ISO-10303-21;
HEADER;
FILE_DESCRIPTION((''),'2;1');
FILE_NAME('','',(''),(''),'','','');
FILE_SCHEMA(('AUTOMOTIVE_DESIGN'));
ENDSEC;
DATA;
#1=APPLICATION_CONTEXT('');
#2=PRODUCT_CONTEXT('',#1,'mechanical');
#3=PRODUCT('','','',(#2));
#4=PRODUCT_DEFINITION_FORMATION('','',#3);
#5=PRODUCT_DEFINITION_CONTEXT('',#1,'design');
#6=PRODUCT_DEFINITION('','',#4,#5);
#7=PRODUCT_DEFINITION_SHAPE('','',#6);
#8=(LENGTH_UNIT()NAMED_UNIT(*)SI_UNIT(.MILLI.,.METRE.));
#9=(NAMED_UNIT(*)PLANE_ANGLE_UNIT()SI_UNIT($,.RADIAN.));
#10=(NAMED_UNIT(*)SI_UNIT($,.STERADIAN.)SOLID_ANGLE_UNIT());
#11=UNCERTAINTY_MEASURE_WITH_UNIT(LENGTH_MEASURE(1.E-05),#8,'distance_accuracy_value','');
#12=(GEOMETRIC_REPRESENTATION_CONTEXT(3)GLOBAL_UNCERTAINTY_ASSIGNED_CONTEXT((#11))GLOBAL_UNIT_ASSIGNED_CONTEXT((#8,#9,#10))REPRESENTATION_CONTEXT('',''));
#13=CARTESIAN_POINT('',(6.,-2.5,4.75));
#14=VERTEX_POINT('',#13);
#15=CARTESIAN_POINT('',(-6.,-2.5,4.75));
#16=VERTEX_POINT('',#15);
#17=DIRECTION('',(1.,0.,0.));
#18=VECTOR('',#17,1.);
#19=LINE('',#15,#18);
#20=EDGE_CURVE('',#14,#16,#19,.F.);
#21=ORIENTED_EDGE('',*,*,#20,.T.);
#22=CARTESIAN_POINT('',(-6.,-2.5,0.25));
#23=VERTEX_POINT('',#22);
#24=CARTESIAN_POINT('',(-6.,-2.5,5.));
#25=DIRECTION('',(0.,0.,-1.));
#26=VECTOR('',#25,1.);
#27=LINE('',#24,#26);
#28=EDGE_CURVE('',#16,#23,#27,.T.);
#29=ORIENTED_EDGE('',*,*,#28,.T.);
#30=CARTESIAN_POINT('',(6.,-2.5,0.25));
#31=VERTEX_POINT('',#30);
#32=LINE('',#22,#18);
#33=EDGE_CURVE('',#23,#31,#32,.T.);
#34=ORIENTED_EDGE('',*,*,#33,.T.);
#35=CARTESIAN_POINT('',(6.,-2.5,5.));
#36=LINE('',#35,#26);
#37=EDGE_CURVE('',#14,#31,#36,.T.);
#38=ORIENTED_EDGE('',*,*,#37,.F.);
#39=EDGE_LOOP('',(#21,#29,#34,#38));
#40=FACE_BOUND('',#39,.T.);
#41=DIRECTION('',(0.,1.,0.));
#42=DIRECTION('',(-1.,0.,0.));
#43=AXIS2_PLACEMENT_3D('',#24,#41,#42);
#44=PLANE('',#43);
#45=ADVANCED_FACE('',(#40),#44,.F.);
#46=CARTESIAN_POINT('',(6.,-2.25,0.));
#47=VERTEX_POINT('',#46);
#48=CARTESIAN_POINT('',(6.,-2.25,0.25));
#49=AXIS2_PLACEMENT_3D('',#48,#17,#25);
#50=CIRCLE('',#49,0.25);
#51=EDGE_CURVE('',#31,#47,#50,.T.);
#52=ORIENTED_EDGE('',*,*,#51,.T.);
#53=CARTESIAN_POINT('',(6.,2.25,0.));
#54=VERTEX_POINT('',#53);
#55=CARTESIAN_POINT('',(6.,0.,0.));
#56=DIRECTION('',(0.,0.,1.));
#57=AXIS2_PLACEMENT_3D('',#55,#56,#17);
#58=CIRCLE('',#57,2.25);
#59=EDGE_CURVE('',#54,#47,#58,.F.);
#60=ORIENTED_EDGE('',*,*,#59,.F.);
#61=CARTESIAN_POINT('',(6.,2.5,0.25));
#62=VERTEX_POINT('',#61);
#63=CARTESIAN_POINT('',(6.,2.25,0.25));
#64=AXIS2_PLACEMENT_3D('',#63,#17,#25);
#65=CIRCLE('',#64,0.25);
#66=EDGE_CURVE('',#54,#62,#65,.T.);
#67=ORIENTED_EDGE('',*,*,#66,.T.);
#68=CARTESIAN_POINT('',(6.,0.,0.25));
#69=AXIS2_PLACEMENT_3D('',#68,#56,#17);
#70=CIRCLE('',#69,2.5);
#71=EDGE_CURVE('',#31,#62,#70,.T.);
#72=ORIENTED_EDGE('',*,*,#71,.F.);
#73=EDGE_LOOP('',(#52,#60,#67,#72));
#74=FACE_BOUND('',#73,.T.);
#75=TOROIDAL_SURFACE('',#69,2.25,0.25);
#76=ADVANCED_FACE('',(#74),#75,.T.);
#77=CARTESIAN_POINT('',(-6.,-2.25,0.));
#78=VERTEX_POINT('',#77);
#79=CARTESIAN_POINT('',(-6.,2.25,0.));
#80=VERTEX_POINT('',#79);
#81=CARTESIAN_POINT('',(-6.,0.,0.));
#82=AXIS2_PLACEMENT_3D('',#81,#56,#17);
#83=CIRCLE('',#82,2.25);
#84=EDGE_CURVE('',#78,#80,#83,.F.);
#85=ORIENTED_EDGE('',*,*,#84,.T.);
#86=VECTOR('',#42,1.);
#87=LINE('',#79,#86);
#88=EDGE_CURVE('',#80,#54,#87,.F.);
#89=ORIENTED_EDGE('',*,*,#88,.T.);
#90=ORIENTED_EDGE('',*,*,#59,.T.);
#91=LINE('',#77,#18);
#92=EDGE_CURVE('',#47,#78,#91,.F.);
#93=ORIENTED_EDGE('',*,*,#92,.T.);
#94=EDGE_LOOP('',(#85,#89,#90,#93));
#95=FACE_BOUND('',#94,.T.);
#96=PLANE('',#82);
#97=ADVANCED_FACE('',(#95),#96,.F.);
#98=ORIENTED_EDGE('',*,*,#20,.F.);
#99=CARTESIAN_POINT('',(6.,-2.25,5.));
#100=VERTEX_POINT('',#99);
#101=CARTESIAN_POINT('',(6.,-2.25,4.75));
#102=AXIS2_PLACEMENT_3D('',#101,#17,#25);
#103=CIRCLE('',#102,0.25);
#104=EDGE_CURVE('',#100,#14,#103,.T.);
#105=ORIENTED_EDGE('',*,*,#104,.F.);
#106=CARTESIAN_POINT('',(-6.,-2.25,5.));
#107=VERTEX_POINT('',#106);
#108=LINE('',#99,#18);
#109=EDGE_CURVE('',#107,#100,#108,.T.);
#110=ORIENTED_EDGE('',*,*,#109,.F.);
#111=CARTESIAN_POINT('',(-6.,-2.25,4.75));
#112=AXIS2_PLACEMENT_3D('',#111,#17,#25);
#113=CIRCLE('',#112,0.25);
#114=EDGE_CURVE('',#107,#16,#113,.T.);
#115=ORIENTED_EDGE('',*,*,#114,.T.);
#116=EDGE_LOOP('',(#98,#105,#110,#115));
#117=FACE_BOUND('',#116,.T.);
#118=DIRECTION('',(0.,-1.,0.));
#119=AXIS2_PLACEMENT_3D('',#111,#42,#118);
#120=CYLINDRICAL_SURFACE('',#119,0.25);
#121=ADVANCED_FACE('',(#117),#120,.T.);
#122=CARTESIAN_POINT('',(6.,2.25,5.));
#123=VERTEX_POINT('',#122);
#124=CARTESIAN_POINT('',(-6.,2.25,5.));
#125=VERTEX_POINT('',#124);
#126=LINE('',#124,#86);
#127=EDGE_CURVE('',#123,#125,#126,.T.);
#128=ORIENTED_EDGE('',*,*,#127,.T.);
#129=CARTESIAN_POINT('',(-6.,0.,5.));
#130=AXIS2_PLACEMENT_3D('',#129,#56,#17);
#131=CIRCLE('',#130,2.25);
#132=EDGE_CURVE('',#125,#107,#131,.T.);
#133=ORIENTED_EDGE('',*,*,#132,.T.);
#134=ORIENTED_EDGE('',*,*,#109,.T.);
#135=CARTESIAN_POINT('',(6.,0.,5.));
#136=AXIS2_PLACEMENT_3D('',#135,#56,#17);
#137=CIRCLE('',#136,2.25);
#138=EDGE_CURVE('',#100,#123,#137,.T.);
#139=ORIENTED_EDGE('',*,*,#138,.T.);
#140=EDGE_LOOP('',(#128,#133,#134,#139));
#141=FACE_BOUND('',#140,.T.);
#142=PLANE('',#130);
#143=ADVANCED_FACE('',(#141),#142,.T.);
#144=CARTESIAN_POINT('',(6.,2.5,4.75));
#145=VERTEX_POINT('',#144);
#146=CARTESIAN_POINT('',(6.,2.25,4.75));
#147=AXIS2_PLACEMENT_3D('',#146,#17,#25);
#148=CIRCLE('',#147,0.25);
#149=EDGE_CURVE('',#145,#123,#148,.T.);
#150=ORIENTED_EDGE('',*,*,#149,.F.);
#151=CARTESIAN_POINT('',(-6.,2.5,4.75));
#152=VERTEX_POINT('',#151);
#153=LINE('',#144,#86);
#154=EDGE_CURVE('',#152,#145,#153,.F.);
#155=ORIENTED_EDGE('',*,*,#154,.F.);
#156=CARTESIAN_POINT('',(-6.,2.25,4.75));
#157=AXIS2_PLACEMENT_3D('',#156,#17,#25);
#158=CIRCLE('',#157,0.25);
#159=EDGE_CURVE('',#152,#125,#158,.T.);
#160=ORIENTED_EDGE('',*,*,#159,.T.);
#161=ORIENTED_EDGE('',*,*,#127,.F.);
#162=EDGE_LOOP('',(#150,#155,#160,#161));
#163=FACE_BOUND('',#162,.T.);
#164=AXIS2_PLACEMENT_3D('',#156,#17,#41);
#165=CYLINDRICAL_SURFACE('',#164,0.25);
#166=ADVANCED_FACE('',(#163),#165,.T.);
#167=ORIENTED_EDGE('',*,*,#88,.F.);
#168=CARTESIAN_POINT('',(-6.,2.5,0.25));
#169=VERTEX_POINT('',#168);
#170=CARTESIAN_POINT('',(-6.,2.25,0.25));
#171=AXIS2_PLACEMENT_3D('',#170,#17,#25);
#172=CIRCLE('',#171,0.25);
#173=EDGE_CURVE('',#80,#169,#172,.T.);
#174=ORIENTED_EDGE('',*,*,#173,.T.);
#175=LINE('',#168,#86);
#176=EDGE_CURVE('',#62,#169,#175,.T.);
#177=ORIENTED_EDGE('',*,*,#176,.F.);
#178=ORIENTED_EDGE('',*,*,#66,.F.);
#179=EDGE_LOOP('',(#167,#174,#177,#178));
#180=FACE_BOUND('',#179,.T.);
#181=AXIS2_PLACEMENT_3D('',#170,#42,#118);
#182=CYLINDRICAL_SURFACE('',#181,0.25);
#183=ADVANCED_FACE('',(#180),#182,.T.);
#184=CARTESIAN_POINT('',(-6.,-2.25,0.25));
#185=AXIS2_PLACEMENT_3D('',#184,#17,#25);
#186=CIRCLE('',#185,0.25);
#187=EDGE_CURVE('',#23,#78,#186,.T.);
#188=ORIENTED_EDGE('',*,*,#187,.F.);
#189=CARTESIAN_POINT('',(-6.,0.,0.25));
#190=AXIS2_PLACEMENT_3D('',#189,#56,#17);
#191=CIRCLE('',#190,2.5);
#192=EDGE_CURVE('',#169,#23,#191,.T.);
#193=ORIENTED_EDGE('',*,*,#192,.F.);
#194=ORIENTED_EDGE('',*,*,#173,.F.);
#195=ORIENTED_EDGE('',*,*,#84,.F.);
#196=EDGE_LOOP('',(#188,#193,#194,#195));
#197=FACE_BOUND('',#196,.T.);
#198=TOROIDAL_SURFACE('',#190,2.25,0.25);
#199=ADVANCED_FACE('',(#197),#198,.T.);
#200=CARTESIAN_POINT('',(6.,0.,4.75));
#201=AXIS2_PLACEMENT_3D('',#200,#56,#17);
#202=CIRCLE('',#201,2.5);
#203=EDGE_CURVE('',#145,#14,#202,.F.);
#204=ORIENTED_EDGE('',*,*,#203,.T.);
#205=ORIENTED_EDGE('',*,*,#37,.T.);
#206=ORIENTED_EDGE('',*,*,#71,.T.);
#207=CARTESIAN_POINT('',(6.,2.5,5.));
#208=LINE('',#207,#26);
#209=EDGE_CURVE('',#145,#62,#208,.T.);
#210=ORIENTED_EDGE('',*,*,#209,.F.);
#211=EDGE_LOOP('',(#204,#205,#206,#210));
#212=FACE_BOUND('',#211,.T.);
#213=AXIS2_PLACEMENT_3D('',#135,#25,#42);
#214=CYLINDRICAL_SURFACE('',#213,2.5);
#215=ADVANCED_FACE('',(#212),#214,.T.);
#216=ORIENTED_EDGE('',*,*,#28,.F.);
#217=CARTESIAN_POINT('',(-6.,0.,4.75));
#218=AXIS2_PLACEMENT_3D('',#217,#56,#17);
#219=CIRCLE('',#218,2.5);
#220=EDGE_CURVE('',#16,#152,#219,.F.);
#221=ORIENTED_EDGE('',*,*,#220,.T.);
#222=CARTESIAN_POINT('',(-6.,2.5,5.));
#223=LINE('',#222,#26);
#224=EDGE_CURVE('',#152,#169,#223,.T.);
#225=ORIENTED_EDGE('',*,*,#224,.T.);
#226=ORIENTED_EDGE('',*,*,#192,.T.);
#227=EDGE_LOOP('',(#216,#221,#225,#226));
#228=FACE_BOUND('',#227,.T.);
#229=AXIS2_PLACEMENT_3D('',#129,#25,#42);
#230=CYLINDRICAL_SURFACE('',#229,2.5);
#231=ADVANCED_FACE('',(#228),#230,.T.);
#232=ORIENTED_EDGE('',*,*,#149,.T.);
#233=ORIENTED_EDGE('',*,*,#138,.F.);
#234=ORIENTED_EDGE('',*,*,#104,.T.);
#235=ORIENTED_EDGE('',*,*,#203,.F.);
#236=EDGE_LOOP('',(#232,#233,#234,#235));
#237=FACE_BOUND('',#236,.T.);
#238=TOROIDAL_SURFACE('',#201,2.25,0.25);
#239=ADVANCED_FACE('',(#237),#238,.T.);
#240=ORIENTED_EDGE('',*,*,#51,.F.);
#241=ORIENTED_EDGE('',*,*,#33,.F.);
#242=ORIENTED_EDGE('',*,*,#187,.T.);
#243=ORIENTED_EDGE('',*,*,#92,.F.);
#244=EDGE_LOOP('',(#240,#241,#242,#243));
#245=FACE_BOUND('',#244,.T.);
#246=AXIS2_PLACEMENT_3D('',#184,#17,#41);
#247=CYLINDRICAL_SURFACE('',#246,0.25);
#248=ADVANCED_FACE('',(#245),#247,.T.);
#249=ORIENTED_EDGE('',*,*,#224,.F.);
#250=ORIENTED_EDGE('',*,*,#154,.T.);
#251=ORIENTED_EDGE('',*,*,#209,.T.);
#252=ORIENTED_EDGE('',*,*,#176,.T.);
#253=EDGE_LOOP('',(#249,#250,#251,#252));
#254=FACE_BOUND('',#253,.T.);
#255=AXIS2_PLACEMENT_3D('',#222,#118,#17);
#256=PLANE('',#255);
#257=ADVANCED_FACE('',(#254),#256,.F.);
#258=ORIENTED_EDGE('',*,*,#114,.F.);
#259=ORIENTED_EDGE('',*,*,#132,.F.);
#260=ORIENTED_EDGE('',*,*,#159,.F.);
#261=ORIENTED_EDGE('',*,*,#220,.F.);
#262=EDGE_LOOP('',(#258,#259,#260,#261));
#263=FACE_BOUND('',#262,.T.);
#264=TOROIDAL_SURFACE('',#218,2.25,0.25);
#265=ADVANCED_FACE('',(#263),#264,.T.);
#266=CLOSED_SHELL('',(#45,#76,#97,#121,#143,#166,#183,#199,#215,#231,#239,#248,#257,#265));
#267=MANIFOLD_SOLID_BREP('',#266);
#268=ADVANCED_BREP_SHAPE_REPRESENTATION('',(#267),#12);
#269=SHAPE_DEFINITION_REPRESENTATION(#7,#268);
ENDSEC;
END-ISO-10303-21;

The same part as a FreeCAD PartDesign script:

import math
import FreeCAD as App
import Part
import Sketcher

V = App.Vector
Q = App.Units.Quantity


def edges_at(feature, points):
    """Names of the edges that pass closest to the given points."""
    edges = feature.Shape.Edges
    near = lambda p: min(range(len(edges)), key=lambda i: edges[i].distToShape(Part.Vertex(*p))[0])
    return sorted({f"Edge{near(p) + 1}" for p in points})

doc = App.newDocument("Part")
params = doc.addObject("Spreadsheet::Sheet", "Params")
for row, (alias, value) in enumerate([
    ("sketch1_radius", "2.5 mm"),
    ("sketch1_width", "12 mm"),
    ("pad1_length", "5 mm"),
    ("fillet_radius", "0.25 mm"),
], start=1):
    params.set(f"A{row}", alias)
    params.set(f"B{row}", "=" + value)
    params.setAlias(f"B{row}", alias)

body = doc.addObject("PartDesign::Body", "Body")

sketch1 = body.newObject("Sketcher::SketchObject", "Sketch")
sketch1.AttachmentSupport = (doc.getObject("XY_Plane"), [""])
sketch1.MapMode = "FlatFace"
sketch1.addGeometry(Part.LineSegment(V(6, 2.5, 0), V(-6, 2.5, 0)), False)
sketch1.addGeometry(Part.ArcOfCircle(Part.Circle(V(-6, 0, 0), V(0, 0, 1), 2.5), math.radians(90), math.radians(270)), False)
sketch1.addGeometry(Part.LineSegment(V(-6, -2.5, 0), V(6, -2.5, 0)), False)
sketch1.addGeometry(Part.ArcOfCircle(Part.Circle(V(6, 0, 0), V(0, 0, 1), 2.5), math.radians(-90), math.radians(90)), False)
sketch1.addConstraint(Sketcher.Constraint("Tangent", 0, 2, 1, 1))
sketch1.addConstraint(Sketcher.Constraint("Tangent", 1, 2, 2, 1))
sketch1.addConstraint(Sketcher.Constraint("Tangent", 2, 2, 3, 1))
sketch1.addConstraint(Sketcher.Constraint("Tangent", 3, 2, 0, 1))
sketch1.addConstraint(Sketcher.Constraint("Horizontal", 0))
sketch1.addConstraint(Sketcher.Constraint("Horizontal", 2))
sketch1.addConstraint(Sketcher.Constraint("Symmetric", 1, 3, 3, 3, -1, 1))
sketch1.addConstraint(Sketcher.Constraint("Radius", 1, Q("2.5 mm")))
sketch1.addConstraint(Sketcher.Constraint("DistanceX", 0, 2, 0, 1, Q("12 mm")))
sketch1.setExpression("Constraints[7]", "Params.sketch1_radius")
sketch1.setExpression("Constraints[8]", "Params.sketch1_width")
pad1 = body.newObject("PartDesign::Pad", "Pad")
pad1.Profile = sketch1
pad1.setExpression("Length", "Params.pad1_length")
doc.recompute()

fillet = body.newObject("PartDesign::Fillet", "Fillet")
fillet.Base = (pad1, edges_at(pad1, [
    (8.5, 0, 5),
    (0, 2.5, 5),
    (-8.5, 0, 5),
    (0, 2.5, 0),
    (8.5, 0, 0),
    (0, -2.5, 0),
    (-8.5, 0, 0),
    (0, -2.5, 5),
]))
fillet.setExpression("Radius", "Params.fillet_radius")

doc.recompute()
